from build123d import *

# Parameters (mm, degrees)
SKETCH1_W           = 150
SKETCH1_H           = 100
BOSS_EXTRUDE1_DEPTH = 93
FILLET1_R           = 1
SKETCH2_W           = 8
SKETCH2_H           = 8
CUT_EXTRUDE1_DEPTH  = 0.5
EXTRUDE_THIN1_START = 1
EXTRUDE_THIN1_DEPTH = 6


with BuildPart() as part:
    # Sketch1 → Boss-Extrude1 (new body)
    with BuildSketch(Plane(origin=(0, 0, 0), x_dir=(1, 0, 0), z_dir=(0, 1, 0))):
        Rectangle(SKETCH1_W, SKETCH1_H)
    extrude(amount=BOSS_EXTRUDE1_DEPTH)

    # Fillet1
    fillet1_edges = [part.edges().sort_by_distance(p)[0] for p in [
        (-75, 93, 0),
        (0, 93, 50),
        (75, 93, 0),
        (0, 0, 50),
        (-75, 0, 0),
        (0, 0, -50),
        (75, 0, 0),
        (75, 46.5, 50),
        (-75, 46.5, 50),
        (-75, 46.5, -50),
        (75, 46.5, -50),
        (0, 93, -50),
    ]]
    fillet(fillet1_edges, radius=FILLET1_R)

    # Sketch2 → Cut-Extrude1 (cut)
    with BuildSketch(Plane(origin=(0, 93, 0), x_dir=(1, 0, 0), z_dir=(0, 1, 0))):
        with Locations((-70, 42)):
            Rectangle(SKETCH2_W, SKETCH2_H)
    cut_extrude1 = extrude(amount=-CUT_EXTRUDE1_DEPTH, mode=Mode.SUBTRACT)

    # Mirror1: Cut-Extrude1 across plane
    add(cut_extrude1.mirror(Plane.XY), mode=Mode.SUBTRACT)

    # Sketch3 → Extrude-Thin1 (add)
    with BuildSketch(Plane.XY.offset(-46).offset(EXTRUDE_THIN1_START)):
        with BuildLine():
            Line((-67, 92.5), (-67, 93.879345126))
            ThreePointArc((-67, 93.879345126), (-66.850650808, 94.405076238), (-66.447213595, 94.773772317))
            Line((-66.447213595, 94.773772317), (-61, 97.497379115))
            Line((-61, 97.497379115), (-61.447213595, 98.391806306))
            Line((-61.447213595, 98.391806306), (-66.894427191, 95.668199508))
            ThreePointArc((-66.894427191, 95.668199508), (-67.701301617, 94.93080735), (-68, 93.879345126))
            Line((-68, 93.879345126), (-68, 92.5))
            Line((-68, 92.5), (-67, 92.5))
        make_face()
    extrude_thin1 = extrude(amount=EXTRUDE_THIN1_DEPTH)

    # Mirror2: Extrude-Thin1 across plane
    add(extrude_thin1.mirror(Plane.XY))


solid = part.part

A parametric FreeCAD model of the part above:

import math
import FreeCAD as App
import Part
import Sketcher
from FreeCAD import Vector
Q = App.Units.Quantity


def add_polygon(sketch, points):
    """Adds a closed chain of lines whose ends are joined by coincident constraints."""
    first, n = sketch.GeometryCount, len(points)
    for a, b in zip(points, points[1:] + points[:1]):
        sketch.addGeometry(Part.LineSegment(App.Vector(*a, 0), App.Vector(*b, 0)), False)
    for i in range(n):
        sketch.addConstraint(Sketcher.Constraint("Coincident", first + i, 2, first + (i + 1) % n, 1))

doc = App.newDocument("Part")
body = doc.addObject("PartDesign::Body", "Body")

# Sketch on XZ plane
sketch1 = doc.addObject("Sketcher::SketchObject", "Sketch")
body.addObject(sketch1)
sketch1.AttachmentSupport = (doc.XZ_Plane, [""])
sketch1.MapMode = "FlatFace"
add_polygon(sketch1, [(-75, -50), (-75, 50), (75, 50), (75, -50)])  # lines 0-3
sketch1.addConstraint([
    Sketcher.Constraint("Vertical", 0),
    Sketcher.Constraint("Horizontal", 1),
    Sketcher.Constraint("Vertical", 2),
    Sketcher.Constraint("Horizontal", 3),
    Sketcher.Constraint("Symmetric", 0, 2, 2, 2, -1, 1),
    Sketcher.Constraint("DistanceX", 1, 1, 1, 2, Q("150 mm")),
    Sketcher.Constraint("DistanceY", 0, 1, 0, 2, Q("100 mm")),
])
pad1 = doc.addObject("PartDesign::Pad", "Pad")
body.addObject(pad1)
pad1.Profile = sketch1
pad1.Length = 93
pad1.Reversed = True
doc.recompute()

fillet = doc.addObject("PartDesign::Fillet", "Fillet")
body.addObject(fillet)
fillet.Base = (pad1, ["Edge1"])
fillet.UseAllEdges = True
fillet.Radius = 1

# Sketch on XZ plane
sketch2 = doc.addObject("Sketcher::SketchObject", "Sketch001")
body.addObject(sketch2)
sketch2.AttachmentSupport = (doc.XZ_Plane, [""])
sketch2.MapMode = "FlatFace"
sketch2.AttachmentOffset = App.Placement(Vector(0, 0, -93), App.Rotation())
add_polygon(sketch2, [(-74, -46), (-74, -38), (-66, -38), (-66, -46)])  # lines 0-3
sketch2.addConstraint([
    Sketcher.Constraint("Vertical", 0),
    Sketcher.Constraint("Horizontal", 1),
    Sketcher.Constraint("Vertical", 2),
    Sketcher.Constraint("Horizontal", 3),
    Sketcher.Constraint("Equal", 3, 0),
    Sketcher.Constraint("DistanceX", 1, 1, 1, 2, Q("8 mm")),
    Sketcher.Constraint("DistanceX", 0, 2, -1, 1, Q("74 mm")),
    Sketcher.Constraint("DistanceY", 0, 2, -1, 1, Q("38 mm")),
])
pocket1 = doc.addObject("PartDesign::Pocket", "Pocket")
body.addObject(pocket1)
pocket1.Profile = sketch2
pocket1.Length = 0.5
pocket1.Reversed = True
doc.recompute()

mirrored = doc.addObject("PartDesign::Mirrored", "Mirrored")
body.addObject(mirrored)
mirrored.Originals = [pocket1]
mirrored.MirrorPlane = (doc.XY_Plane, [""])
body.Tip = mirrored

# Sketch on XY plane
sketch3 = doc.addObject("Sketcher::SketchObject", "Sketch002")
body.addObject(sketch3)
sketch3.AttachmentSupport = (doc.XY_Plane, [""])
sketch3.MapMode = "FlatFace"
sketch3.AttachmentOffset = App.Placement(Vector(0, 0, -45), App.Rotation())
sketch3.addGeometry([
    Part.LineSegment(Vector(-67, 92.5, 0), Vector(-67, 93.879345, 0)),  # 0
    Part.ArcOfCircle(Part.Circle(Vector(-66, 93.879345, 0), Vector(0, 0, 1), 1), math.radians(116.565051), math.radians(180)),  # 1
    Part.LineSegment(Vector(-66.447214, 94.773772, 0), Vector(-61, 97.497379, 0)),  # 2
    Part.LineSegment(Vector(-61, 97.497379, 0), Vector(-61.447214, 98.391806, 0)),  # 3
    Part.LineSegment(Vector(-61.447214, 98.391806, 0), Vector(-66.894427, 95.6682, 0)),  # 4
    Part.ArcOfCircle(Part.Circle(Vector(-66, 93.879345, 0), Vector(0, 0, 1), 2), math.radians(116.565051), math.radians(180)),  # 5
    Part.LineSegment(Vector(-68, 93.879345, 0), Vector(-68, 92.5, 0)),  # 6
    Part.LineSegment(Vector(-68, 92.5, 0), Vector(-67, 92.5, 0)),  # 7
], False)
sketch3.addConstraint([
    Sketcher.Constraint("Tangent", 0, 2, 1, 2),
    Sketcher.Constraint("Tangent", 1, 1, 2, 1),
    Sketcher.Constraint("Coincident", 2, 2, 3, 1),
    Sketcher.Constraint("Coincident", 3, 2, 4, 1),
    Sketcher.Constraint("Tangent", 4, 2, 5, 1),
    Sketcher.Constraint("Tangent", 5, 2, 6, 1),
    Sketcher.Constraint("Coincident", 6, 2, 7, 1),
    Sketcher.Constraint("Coincident", 7, 2, 0, 1),
    Sketcher.Constraint("Vertical", 0),
    Sketcher.Constraint("Vertical", 6),
    Sketcher.Constraint("Horizontal", 7),
    Sketcher.Constraint("Coincident", 5, 3, 1, 3),
    Sketcher.Constraint("Perpendicular", 2, 3),
    Sketcher.Constraint("Perpendicular", 3, 4),
    Sketcher.Constraint("Radius", 1, Q("1 mm")),
    Sketcher.Constraint("Radius", 5, Q("2 mm")),
    Sketcher.Constraint("DistanceX", 1, 3, -1, 1, Q("66 mm")),
    Sketcher.Constraint("DistanceX", 2, 2, -1, 1, Q("61 mm")),
    Sketcher.Constraint("DistanceY", -1, 1, 6, 2, Q("92.5 mm")),
    Sketcher.Constraint("DistanceY", -1, 1, 4, 2, Q("95.6682 mm")),
    Sketcher.Constraint("Distance", 2, Q("6.09017 mm")),
])
pad2 = doc.addObject("PartDesign::Pad", "Pad001")
body.addObject(pad2)
pad2.Profile = sketch3
pad2.Length = 6
doc.recompute()

mirrored2 = doc.addObject("PartDesign::Mirrored", "Mirrored001")
body.addObject(mirrored2)
mirrored2.Originals = [pad2]
mirrored2.MirrorPlane = (doc.XY_Plane, [""])
body.Tip = mirrored2

doc.recompute()
